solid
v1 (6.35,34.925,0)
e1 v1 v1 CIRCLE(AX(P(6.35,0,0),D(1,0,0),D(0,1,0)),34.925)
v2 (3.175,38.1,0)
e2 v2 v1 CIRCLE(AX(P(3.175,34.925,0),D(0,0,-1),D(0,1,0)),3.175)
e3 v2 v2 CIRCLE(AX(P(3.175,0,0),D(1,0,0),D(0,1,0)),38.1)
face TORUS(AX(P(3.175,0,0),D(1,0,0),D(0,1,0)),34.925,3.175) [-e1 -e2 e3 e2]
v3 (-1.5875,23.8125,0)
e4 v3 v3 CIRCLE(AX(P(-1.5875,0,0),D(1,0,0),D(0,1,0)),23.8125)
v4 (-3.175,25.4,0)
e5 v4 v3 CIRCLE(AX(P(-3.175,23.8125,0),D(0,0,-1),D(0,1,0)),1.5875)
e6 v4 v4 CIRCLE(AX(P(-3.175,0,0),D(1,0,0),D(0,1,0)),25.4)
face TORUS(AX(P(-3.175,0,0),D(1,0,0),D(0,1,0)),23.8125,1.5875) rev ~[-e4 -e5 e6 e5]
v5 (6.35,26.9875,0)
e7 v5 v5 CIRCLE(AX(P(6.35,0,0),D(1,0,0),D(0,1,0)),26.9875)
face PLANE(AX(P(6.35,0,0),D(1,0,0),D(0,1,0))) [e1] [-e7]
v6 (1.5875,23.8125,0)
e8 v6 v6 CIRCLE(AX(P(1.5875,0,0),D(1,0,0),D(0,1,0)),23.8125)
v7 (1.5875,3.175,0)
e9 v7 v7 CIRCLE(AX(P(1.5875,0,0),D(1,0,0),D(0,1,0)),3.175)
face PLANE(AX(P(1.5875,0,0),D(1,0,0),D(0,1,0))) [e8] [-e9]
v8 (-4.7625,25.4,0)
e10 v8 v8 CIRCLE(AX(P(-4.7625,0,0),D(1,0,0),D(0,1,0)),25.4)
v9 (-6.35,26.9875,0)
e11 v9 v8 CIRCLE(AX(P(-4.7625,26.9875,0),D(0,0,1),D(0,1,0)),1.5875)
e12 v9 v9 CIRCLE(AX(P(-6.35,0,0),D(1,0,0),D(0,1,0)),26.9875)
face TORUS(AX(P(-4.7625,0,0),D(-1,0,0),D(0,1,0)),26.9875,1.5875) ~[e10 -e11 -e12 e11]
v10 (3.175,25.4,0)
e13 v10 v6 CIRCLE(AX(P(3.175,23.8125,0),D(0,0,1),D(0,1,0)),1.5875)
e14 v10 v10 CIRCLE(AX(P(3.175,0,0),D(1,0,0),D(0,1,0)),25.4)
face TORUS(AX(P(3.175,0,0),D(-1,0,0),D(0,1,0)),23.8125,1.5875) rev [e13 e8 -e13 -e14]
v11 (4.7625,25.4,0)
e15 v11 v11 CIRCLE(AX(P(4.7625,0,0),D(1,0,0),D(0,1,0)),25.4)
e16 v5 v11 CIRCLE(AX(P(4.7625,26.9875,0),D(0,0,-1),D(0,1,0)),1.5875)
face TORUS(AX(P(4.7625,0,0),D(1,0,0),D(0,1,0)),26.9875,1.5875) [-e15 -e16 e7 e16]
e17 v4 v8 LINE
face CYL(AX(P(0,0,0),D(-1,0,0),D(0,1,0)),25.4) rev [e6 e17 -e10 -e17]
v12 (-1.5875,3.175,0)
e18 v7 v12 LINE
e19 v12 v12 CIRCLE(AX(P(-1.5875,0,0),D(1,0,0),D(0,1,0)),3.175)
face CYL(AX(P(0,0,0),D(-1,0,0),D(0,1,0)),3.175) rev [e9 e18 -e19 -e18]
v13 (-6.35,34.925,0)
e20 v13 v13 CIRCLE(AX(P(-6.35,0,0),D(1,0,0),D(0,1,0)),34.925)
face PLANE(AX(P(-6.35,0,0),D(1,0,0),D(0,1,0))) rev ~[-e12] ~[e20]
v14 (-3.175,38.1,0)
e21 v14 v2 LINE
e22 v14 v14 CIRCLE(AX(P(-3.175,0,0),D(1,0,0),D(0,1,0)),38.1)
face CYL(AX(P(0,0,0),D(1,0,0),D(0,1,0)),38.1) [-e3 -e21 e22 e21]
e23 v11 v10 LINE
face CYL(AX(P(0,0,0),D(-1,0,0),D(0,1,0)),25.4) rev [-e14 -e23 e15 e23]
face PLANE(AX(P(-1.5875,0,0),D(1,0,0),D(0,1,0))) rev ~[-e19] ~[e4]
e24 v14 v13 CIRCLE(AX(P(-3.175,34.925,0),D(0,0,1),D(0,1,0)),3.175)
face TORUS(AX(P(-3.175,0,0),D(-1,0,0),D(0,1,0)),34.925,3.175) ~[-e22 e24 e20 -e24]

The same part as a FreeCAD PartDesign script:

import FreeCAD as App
import Part
import Sketcher

V = App.Vector
Q = App.Units.Quantity


def edges_at(feature, points):
    """Names of the edges that pass closest to the given points."""
    edges = feature.Shape.Edges
    near = lambda p: min(range(len(edges)), key=lambda i: edges[i].distToShape(Part.Vertex(*p))[0])
    return sorted({f"Edge{near(p) + 1}" for p in points})

doc = App.newDocument("Part")
body = doc.addObject("PartDesign::Body", "Body")

# Sketch on YZ plane
sketch1 = doc.addObject("Sketcher::SketchObject", "Sketch")
body.addObject(sketch1)
sketch1.AttachmentSupport = (doc.YZ_Plane, [""])
sketch1.MapMode = "FlatFace"
sketch1.addGeometry(Part.Circle(V(0, 0, 0), V(0, 0, 1), 25.4), False)
sketch1.addGeometry(Part.Circle(V(0, 0, 0), V(0, 0, 1), 3.2), False)
sketch1.addConstraint(Sketcher.Constraint("Coincident", 0, 3, -1, 1))
sketch1.addConstraint(Sketcher.Constraint("Coincident", 1, 3, -1, 1))
sketch1.addConstraint(Sketcher.Constraint("Diameter", 0, Q("2 in")))
sketch1.addConstraint(Sketcher.Constraint("Diameter", 1, Q("0.25 in")))
pad1 = doc.addObject("PartDesign::Pad", "Pad")
body.addObject(pad1)
pad1.Profile = sketch1
pad1.Length = Q("0.125 in")
pad1.Midplane = True

# Sketch on YZ plane
sketch2 = doc.addObject("Sketcher::SketchObject", "Sketch001")
body.addObject(sketch2)
sketch2.AttachmentSupport = (doc.YZ_Plane, [""])
sketch2.MapMode = "FlatFace"
sketch2.addGeometry(Part.Circle(V(0, 0, 0), V(0, 0, 1), 38), False)
sketch2.addGeometry(Part.Circle(V(0, 0, 0), V(0, 0, 1), 25), False)
sketch2.addConstraint(Sketcher.Constraint("Coincident", 0, 3, -1, 1))
sketch2.addConstraint(Sketcher.Constraint("Coincident", 1, 3, -1, 1))
sketch2.addConstraint(Sketcher.Constraint("Diameter", 0, Q("3 in")))
sketch2.addConstraint(Sketcher.Constraint("Diameter", 1, Q("2 in")))
pad2 = doc.addObject("PartDesign::Pad", "Pad001")
body.addObject(pad2)
pad2.Profile = sketch2
pad2.Length = Q("0.5 in")
pad2.Midplane = True
doc.recompute()

fillet = doc.addObject("PartDesign::Fillet", "Fillet")
body.addObject(fillet)
fillet.Base = (pad2, edges_at(pad2, [(-6.35, -38.1, 0), (6.35, -38.1, 0)]))
fillet.Radius = Q("0.125 in")
doc.recompute()

fillet2 = doc.addObject("PartDesign::Fillet", "Fillet001")
body.addObject(fillet2)
fillet2.Base = (fillet, edges_at(fillet, [
    (1.587, -25.4, 0),
    (6.35, -25.4, 0),
    (-1.587, -25.4, 0),
    (-6.35, -25.4, 0),
]))
fillet2.Radius = Q("0.0625 in")

doc.recompute()
